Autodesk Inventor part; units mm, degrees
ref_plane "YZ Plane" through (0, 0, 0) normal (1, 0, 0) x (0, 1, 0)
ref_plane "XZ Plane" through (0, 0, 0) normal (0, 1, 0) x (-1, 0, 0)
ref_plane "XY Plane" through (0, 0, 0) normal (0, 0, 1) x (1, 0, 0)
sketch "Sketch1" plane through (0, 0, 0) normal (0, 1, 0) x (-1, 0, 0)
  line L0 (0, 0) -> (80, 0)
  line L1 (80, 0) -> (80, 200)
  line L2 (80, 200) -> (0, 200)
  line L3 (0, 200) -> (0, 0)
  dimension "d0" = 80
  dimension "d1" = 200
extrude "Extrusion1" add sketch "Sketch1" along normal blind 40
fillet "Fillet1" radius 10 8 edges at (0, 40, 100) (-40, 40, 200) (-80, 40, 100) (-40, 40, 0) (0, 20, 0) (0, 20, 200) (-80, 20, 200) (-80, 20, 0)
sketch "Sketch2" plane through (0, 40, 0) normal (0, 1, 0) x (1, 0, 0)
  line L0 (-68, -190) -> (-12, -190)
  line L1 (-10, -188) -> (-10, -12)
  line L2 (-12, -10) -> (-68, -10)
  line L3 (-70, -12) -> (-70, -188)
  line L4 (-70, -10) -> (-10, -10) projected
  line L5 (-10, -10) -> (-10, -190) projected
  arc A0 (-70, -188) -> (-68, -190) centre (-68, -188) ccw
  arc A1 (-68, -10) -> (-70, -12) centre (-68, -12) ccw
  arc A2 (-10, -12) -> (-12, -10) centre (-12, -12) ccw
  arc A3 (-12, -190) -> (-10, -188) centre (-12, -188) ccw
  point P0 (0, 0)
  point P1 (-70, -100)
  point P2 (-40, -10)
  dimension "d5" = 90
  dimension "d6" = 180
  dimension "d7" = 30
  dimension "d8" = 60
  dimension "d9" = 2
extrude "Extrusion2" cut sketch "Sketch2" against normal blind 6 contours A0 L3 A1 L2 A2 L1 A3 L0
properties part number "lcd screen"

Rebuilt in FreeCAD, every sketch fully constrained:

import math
import FreeCAD as App
import Part
import Sketcher
from FreeCAD import Vector
Q = App.Units.Quantity


def edges_at(feature, points):
    """Names of the edges that pass closest to the given points."""
    edges = feature.Shape.Edges
    near = lambda p: min(range(len(edges)), key=lambda i: edges[i].distToShape(Part.Vertex(*p))[0])
    return sorted({f"Edge{near(p) + 1}" for p in points})

doc = App.newDocument("Part")
body = doc.addObject("PartDesign::Body", "Body")

# Sketch on XZ plane
sketch1 = body.newObject("Sketcher::SketchObject", "Sketch")
sketch1.AttachmentSupport = (doc.getObject("XZ_Plane"), [""])
sketch1.MapMode = "FlatFace"
sketch1.addGeometry([
    Part.LineSegment(Vector(0, 200, 0), Vector(0, 0, 0)),
    Part.LineSegment(Vector(0, 0, 0), Vector(-80, 0, 0)),
    Part.LineSegment(Vector(-80, 0, 0), Vector(-80, 200, 0)),
    Part.LineSegment(Vector(-80, 200, 0), Vector(0, 200, 0)),
], False)
sketch1.addConstraint([
    Sketcher.Constraint("Coincident", 0, 2, 1, 1),
    Sketcher.Constraint("Coincident", 1, 2, 2, 1),
    Sketcher.Constraint("Coincident", 2, 2, 3, 1),
    Sketcher.Constraint("Coincident", 3, 2, 0, 1),
    Sketcher.Constraint("Vertical", 0),
    Sketcher.Constraint("Horizontal", 1),
    Sketcher.Constraint("Vertical", 2),
    Sketcher.Constraint("Horizontal", 3),
    Sketcher.Constraint("Coincident", 0, 2, -1, 1),
    Sketcher.Constraint("DistanceX", 1, 2, 1, 1, Q("80 mm")),
    Sketcher.Constraint("DistanceY", 0, 2, 0, 1, Q("200 mm")),
])
pad1 = body.newObject("PartDesign::Pad", "Pad")
pad1.Profile = sketch1
pad1.Length = 40
pad1.Reversed = True
doc.recompute()

fillet = body.newObject("PartDesign::Fillet", "Fillet")
fillet.Base = (pad1, edges_at(pad1, [
    (0, 40, 100),
    (-40, 40, 200),
    (-80, 40, 100),
    (-40, 40, 0),
    (0, 20, 0),
    (0, 20, 200),
    (-80, 20, 200),
    (-80, 20, 0),
]))
fillet.Radius = 10

# Sketch on XZ plane
sketch2 = body.newObject("Sketcher::SketchObject", "Sketch001")
sketch2.AttachmentSupport = (doc.getObject("XZ_Plane"), [""])
sketch2.MapMode = "FlatFace"
sketch2.AttachmentOffset = App.Placement(Vector(0, 0, -40), App.Rotation())
sketch2.addGeometry([
    Part.ArcOfCircle(Part.Circle(Vector(-68, 188, 0), Vector(0, 0, 1), 2), math.radians(90), math.radians(180)),  # 0
    Part.LineSegment(Vector(-68, 190, 0), Vector(-12, 190, 0)),  # 1
    Part.ArcOfCircle(Part.Circle(Vector(-12, 188, 0), Vector(0, 0, 1), 2), math.radians(0), math.radians(90)),  # 2
    Part.LineSegment(Vector(-10, 188, 0), Vector(-10, 12, 0)),  # 3
    Part.ArcOfCircle(Part.Circle(Vector(-12, 12, 0), Vector(0, 0, 1), 2), math.radians(-90), math.radians(0)),  # 4
    Part.LineSegment(Vector(-12, 10, 0), Vector(-68, 10, 0)),  # 5
    Part.ArcOfCircle(Part.Circle(Vector(-68, 12, 0), Vector(0, 0, 1), 2), math.radians(180), math.radians(270)),  # 6
    Part.LineSegment(Vector(-70, 12, 0), Vector(-70, 188, 0)),  # 7
], False)
sketch2.addConstraint([
    Sketcher.Constraint("Tangent", 0, 1, 1, 1),
    Sketcher.Constraint("Tangent", 1, 2, 2, 2),
    Sketcher.Constraint("Tangent", 2, 1, 3, 1),
    Sketcher.Constraint("Tangent", 3, 2, 4, 2),
    Sketcher.Constraint("Tangent", 4, 1, 5, 1),
    Sketcher.Constraint("Tangent", 5, 2, 6, 2),
    Sketcher.Constraint("Tangent", 6, 1, 7, 1),
    Sketcher.Constraint("Tangent", 7, 2, 0, 2),
    Sketcher.Constraint("Horizontal", 1),
    Sketcher.Constraint("Vertical", 3),
    Sketcher.Constraint("Horizontal", 5),
    Sketcher.Constraint("Vertical", 7),
    Sketcher.Constraint("Equal", 0, 2),
    Sketcher.Constraint("Equal", 2, 4),
    Sketcher.Constraint("Equal", 4, 6),
    Sketcher.Constraint("Radius", 0, Q("2 mm")),
    Sketcher.Constraint("DistanceX", 6, 1, 3, 2, Q("60 mm")),
    Sketcher.Constraint("DistanceY", 3, 2, 3, 1, Q("176 mm")),
    Sketcher.Constraint("DistanceX", 0, 3, -1, 1, Q("68 mm")),
    Sketcher.Constraint("DistanceY", -1, 1, 0, 3, Q("188 mm")),
])
pocket1 = body.newObject("PartDesign::Pocket", "Pocket")
pocket1.Profile = sketch2
pocket1.Length = 6
pocket1.Reversed = True

doc.recompute()
